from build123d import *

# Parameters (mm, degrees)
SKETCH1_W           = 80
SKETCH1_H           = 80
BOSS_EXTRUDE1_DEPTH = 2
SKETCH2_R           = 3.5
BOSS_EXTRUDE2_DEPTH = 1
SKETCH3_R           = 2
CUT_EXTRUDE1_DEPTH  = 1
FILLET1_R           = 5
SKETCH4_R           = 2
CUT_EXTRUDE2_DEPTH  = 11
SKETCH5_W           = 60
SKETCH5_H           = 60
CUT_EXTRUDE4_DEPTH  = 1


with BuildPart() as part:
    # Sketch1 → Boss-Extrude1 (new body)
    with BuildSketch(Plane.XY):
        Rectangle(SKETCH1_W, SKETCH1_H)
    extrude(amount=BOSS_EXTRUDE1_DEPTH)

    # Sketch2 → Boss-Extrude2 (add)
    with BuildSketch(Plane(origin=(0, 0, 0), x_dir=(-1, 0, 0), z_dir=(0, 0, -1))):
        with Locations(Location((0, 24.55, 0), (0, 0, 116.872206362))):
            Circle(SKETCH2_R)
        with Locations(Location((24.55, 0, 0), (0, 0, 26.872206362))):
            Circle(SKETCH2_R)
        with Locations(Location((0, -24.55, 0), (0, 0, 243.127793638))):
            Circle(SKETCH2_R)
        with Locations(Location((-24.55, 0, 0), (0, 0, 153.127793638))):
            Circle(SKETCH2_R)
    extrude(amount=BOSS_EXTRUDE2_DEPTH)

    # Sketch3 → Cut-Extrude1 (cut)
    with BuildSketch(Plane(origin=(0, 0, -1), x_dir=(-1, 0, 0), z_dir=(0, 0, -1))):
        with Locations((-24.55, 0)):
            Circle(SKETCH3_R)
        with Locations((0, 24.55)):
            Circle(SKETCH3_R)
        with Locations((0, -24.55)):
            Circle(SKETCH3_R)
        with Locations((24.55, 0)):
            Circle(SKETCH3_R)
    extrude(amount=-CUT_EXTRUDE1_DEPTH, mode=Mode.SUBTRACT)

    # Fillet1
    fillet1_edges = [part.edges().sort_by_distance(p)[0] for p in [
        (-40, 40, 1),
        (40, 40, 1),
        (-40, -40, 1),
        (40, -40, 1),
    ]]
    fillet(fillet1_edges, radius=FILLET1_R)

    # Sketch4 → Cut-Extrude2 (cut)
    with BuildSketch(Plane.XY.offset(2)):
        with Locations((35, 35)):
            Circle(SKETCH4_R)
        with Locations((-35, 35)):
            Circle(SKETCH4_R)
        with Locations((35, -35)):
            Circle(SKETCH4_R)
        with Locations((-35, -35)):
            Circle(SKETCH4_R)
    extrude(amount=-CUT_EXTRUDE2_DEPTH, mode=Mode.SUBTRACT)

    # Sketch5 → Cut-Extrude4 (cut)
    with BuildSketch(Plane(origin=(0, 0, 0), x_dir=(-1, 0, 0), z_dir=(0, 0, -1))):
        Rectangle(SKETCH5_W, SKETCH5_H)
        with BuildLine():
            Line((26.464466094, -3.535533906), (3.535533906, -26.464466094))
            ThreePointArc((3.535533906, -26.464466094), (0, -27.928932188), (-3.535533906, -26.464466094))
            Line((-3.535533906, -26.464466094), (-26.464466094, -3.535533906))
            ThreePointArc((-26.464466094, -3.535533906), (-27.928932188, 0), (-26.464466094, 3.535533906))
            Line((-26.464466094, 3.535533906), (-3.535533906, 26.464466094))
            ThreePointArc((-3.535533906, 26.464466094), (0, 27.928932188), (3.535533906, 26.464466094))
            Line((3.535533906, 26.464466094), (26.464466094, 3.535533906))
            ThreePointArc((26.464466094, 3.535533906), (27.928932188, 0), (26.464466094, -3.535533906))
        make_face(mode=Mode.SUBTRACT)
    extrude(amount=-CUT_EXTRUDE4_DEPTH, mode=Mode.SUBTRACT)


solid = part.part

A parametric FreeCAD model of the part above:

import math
import FreeCAD as App
import Part
import Sketcher

V = App.Vector
Q = App.Units.Quantity


def edges_at(feature, points):
    """Names of the edges that pass closest to the given points."""
    edges = feature.Shape.Edges
    near = lambda p: min(range(len(edges)), key=lambda i: edges[i].distToShape(Part.Vertex(*p))[0])
    return sorted({f"Edge{near(p) + 1}" for p in points})

doc = App.newDocument("Part")
body = doc.addObject("PartDesign::Body", "Body")

sketch1 = body.newObject("Sketcher::SketchObject", "Sketch")
sketch1.AttachmentSupport = (doc.getObject("XY_Plane"), [""])
sketch1.MapMode = "FlatFace"
sketch1.addGeometry([
    Part.LineSegment(V(-40, 40, 0), V(-40, -40, 0)),
    Part.LineSegment(V(-40, -40, 0), V(40, -40, 0)),
    Part.LineSegment(V(40, -40, 0), V(40, 40, 0)),
    Part.LineSegment(V(40, 40, 0), V(-40, 40, 0)),
], False)
sketch1.addConstraint([
    Sketcher.Constraint("Coincident", 0, 2, 1, 1),
    Sketcher.Constraint("Coincident", 1, 2, 2, 1),
    Sketcher.Constraint("Coincident", 2, 2, 3, 1),
    Sketcher.Constraint("Coincident", 3, 2, 0, 1),
    Sketcher.Constraint("Vertical", 0),
    Sketcher.Constraint("Horizontal", 1),
    Sketcher.Constraint("Vertical", 2),
    Sketcher.Constraint("Horizontal", 3),
    Sketcher.Constraint("Symmetric", 0, 2, 2, 2, -1, 1),
    Sketcher.Constraint("Equal", 3, 0),
    Sketcher.Constraint("DistanceX", 1, 1, 1, 2, Q("80 mm")),
])
pad1 = body.newObject("PartDesign::Pad", "Pad")
pad1.Profile = sketch1
pad1.Length = 2

sketch2 = body.newObject("Sketcher::SketchObject", "Sketch001")
sketch2.AttachmentSupport = (doc.getObject("XY_Plane"), [""])
sketch2.MapMode = "FlatFace"
sketch2.addGeometry([
    Part.Circle(V(0, 24.6, 0), V(0, 0, 1), 3.5),
    Part.Circle(V(-24.6, 0, 0), V(0, 0, 1), 3.5),
    Part.Circle(V(0, -24.6, 0), V(0, 0, 1), 3.5),
    Part.Circle(V(24.6, 0, 0), V(0, 0, 1), 3.5),
], False)
sketch2.addConstraint([
    Sketcher.Constraint("Equal", 0, 1),
    Sketcher.Constraint("Equal", 1, 2),
    Sketcher.Constraint("Equal", 2, 3),
    Sketcher.Constraint("Symmetric", 0, 3, 2, 3, -1, 1),
    Sketcher.Constraint("Symmetric", 1, 3, 3, 3, -1, 1),
    Sketcher.Constraint("PointOnObject", 0, 3, -2),
    Sketcher.Constraint("PointOnObject", 1, 3, -1),
    Sketcher.Constraint("Diameter", 0, Q("7 mm")),
    Sketcher.Constraint("DistanceY", 2, 3, 0, 3, Q("49.1 mm")),
    Sketcher.Constraint("DistanceX", 1, 3, 3, 3, Q("49.1 mm")),
])
pad2 = body.newObject("PartDesign::Pad", "Pad001")
pad2.Profile = sketch2
pad2.Length = 1
pad2.Reversed = True

sketch3 = body.newObject("Sketcher::SketchObject", "Sketch002")
sketch3.AttachmentSupport = (doc.getObject("XY_Plane"), [""])
sketch3.MapMode = "FlatFace"
sketch3.AttachmentOffset = App.Placement(V(0, 0, -1), App.Rotation())
sketch3.addGeometry([
    Part.Circle(V(24.6, 0, 0), V(0, 0, 1), 2),
    Part.Circle(V(0, 24.6, 0), V(0, 0, 1), 2),
    Part.Circle(V(0, -24.6, 0), V(0, 0, 1), 2),
    Part.Circle(V(-24.6, 0, 0), V(0, 0, 1), 2),
], False)
sketch3.addConstraint([
    Sketcher.Constraint("Equal", 0, 1),
    Sketcher.Constraint("Equal", 1, 2),
    Sketcher.Constraint("Equal", 2, 3),
    Sketcher.Constraint("Symmetric", 1, 3, 2, 3, -1, 1),
    Sketcher.Constraint("Symmetric", 0, 3, 3, 3, -1, 1),
    Sketcher.Constraint("PointOnObject", 0, 3, -1),
    Sketcher.Constraint("PointOnObject", 1, 3, -2),
    Sketcher.Constraint("Diameter", 0, Q("4 mm")),
    Sketcher.Constraint("DistanceY", 2, 3, 1, 3, Q("49.1 mm")),
    Sketcher.Constraint("DistanceX", 3, 3, 0, 3, Q("49.1 mm")),
])
pocket1 = body.newObject("PartDesign::Pocket", "Pocket")
pocket1.Profile = sketch3
pocket1.Length = 1
pocket1.Reversed = True
doc.recompute()

fillet = body.newObject("PartDesign::Fillet", "Fillet")
fillet.Base = (pocket1, edges_at(pocket1, [
    (-40, 40, 1),
    (40, 40, 1),
    (-40, -40, 1),
    (40, -40, 1),
]))
fillet.Radius = 5

sketch4 = body.newObject("Sketcher::SketchObject", "Sketch003")
sketch4.AttachmentSupport = (doc.getObject("XY_Plane"), [""])
sketch4.MapMode = "FlatFace"
sketch4.AttachmentOffset = App.Placement(V(0, 0, 2), App.Rotation())
sketch4.addGeometry([
    Part.Circle(V(35, 35, 0), V(0, 0, 1), 2),
    Part.Circle(V(-35, 35, 0), V(0, 0, 1), 2),
    Part.Circle(V(35, -35, 0), V(0, 0, 1), 2),
    Part.Circle(V(-35, -35, 0), V(0, 0, 1), 2),
], False)
sketch4.addConstraint([
    Sketcher.Constraint("Equal", 0, 1),
    Sketcher.Constraint("Equal", 1, 2),
    Sketcher.Constraint("Equal", 2, 3),
    Sketcher.Constraint("Symmetric", 1, 3, 2, 3, -1, 1),
    Sketcher.Constraint("Symmetric", 0, 3, 3, 3, -1, 1),
    Sketcher.Constraint("Symmetric", 0, 3, 1, 3, -2),
    Sketcher.Constraint("Diameter", 0, Q("4 mm")),
    Sketcher.Constraint("DistanceX", -1, 1, 0, 3, Q("35 mm")),
    Sketcher.Constraint("DistanceY", -1, 1, 0, 3, Q("35 mm")),
])
pocket2 = body.newObject("PartDesign::Pocket", "Pocket001")
pocket2.Profile = sketch4
pocket2.Length = 11

sketch5 = body.newObject("Sketcher::SketchObject", "Sketch004")
sketch5.AttachmentSupport = (doc.getObject("XY_Plane"), [""])
sketch5.MapMode = "FlatFace"
sketch5.addGeometry([
    Part.LineSegment(V(30, 30, 0), V(30, -30, 0)),
    Part.LineSegment(V(30, -30, 0), V(-30, -30, 0)),
    Part.LineSegment(V(-30, -30, 0), V(-30, 30, 0)),
    Part.LineSegment(V(-30, 30, 0), V(30, 30, 0)),
    Part.ArcOfCircle(Part.Circle(V(-23, 0, 0), V(0, 0, 1), 5), math.radians(135), math.radians(225)),
    Part.LineSegment(V(-26, -4, 0), V(-4, -26, 0)),
    Part.ArcOfCircle(Part.Circle(V(0, -23, 0), V(0, 0, 1), 5), math.radians(-135), math.radians(-45)),
    Part.LineSegment(V(4, -26, 0), V(26, -4, 0)),
    Part.ArcOfCircle(Part.Circle(V(23, 0, 0), V(0, 0, 1), 5), math.radians(-45), math.radians(45)),
    Part.LineSegment(V(26, 4, 0), V(4, 26, 0)),
    Part.ArcOfCircle(Part.Circle(V(0, 23, 0), V(0, 0, 1), 5), math.radians(45), math.radians(135)),
    Part.LineSegment(V(-4, 26, 0), V(-26, 4, 0)),
], False)
sketch5.addConstraint([
    Sketcher.Constraint("Coincident", 0, 2, 1, 1),
    Sketcher.Constraint("Coincident", 1, 2, 2, 1),
    Sketcher.Constraint("Coincident", 2, 2, 3, 1),
    Sketcher.Constraint("Coincident", 3, 2, 0, 1),
    Sketcher.Constraint("Tangent", 4, 2, 5, 1),
    Sketcher.Constraint("Tangent", 5, 2, 6, 1),
    Sketcher.Constraint("Tangent", 6, 2, 7, 1),
    Sketcher.Constraint("Tangent", 7, 2, 8, 1),
    Sketcher.Constraint("Tangent", 8, 2, 9, 1),
    Sketcher.Constraint("Tangent", 9, 2, 10, 1),
    Sketcher.Constraint("Tangent", 10, 2, 11, 1),
    Sketcher.Constraint("Tangent", 11, 2, 4, 1),
    Sketcher.Constraint("Vertical", 0),
    Sketcher.Constraint("Horizontal", 1),
    Sketcher.Constraint("Vertical", 2),
    Sketcher.Constraint("Horizontal", 3),
    Sketcher.Constraint("Equal", 4, 6),
    Sketcher.Constraint("Equal", 6, 8),
    Sketcher.Constraint("Equal", 8, 10),
    Sketcher.Constraint("Symmetric", 4, 3, 8, 3, -1, 1),
    Sketcher.Constraint("Symmetric", 6, 3, 10, 3, -1, 1),
    Sketcher.Constraint("Symmetric", 0, 2, 2, 2, -1, 1),
    Sketcher.Constraint("Symmetric", 5, 2, 6, 2, -2),
    Sketcher.Constraint("Perpendicular", 5, 7),
    Sketcher.Constraint("Equal", 3, 0),
    Sketcher.Constraint("Radius", 4, Q("5 mm")),
    Sketcher.Constraint("DistanceX", 1, 2, 1, 1, Q("60 mm")),
    Sketcher.Constraint("DistanceY", 6, 3, 4, 2, Q("19.393398 mm")),
])
pocket3 = body.newObject("PartDesign::Pocket", "Pocket002")
pocket3.Profile = sketch5
pocket3.Length = 1
pocket3.Reversed = True

doc.recompute()
